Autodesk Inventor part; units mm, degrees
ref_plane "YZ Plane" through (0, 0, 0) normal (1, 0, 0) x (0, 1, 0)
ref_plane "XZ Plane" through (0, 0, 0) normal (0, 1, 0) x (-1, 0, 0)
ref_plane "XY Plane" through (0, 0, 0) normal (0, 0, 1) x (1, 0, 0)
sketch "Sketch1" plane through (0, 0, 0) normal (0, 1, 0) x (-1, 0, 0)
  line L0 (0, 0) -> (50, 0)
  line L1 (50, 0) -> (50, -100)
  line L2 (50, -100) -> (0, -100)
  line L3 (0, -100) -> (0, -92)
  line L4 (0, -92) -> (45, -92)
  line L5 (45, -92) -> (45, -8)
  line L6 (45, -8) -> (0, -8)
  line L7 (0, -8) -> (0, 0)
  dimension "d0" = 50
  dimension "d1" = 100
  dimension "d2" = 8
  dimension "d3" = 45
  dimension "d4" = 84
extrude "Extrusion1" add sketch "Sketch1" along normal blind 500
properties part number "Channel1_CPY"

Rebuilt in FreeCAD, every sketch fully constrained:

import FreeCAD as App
import Part
import Sketcher

doc = App.newDocument("Part")
body = doc.addObject("PartDesign::Body", "Body")

sketch1 = doc.addObject("Sketcher::SketchObject", "Sketch")
body.addObject(sketch1)
sketch1.AttachmentSupport = (doc.XZ_Plane, [""])
sketch1.MapMode = "FlatFace"
sketch1.addGeometry([
    Part.LineSegment(App.Vector(-50, 0, 0), App.Vector(0, 0, 0)),
    Part.LineSegment(App.Vector(0, 0, 0), App.Vector(0, -8, 0)),
    Part.LineSegment(App.Vector(0, -8, 0), App.Vector(-45, -8, 0)),
    Part.LineSegment(App.Vector(-45, -8, 0), App.Vector(-45, -92, 0)),
    Part.LineSegment(App.Vector(-45, -92, 0), App.Vector(0, -92, 0)),
    Part.LineSegment(App.Vector(0, -92, 0), App.Vector(0, -100, 0)),
    Part.LineSegment(App.Vector(0, -100, 0), App.Vector(-50, -100, 0)),
    Part.LineSegment(App.Vector(-50, -100, 0), App.Vector(-50, 0, 0)),
], False)
sketch1.addConstraint([
    Sketcher.Constraint("Coincident", 0, 2, 1, 1),
    Sketcher.Constraint("Coincident", 1, 2, 2, 1),
    Sketcher.Constraint("Coincident", 2, 2, 3, 1),
    Sketcher.Constraint("Coincident", 3, 2, 4, 1),
    Sketcher.Constraint("Coincident", 4, 2, 5, 1),
    Sketcher.Constraint("Coincident", 5, 2, 6, 1),
    Sketcher.Constraint("Coincident", 6, 2, 7, 1),
    Sketcher.Constraint("Coincident", 7, 2, 0, 1),
    Sketcher.Constraint("Horizontal", 0),
    Sketcher.Constraint("Vertical", 1),
    Sketcher.Constraint("Horizontal", 2),
    Sketcher.Constraint("Vertical", 3),
    Sketcher.Constraint("Horizontal", 4),
    Sketcher.Constraint("Vertical", 5),
    Sketcher.Constraint("Horizontal", 6),
    Sketcher.Constraint("Vertical", 7),
    Sketcher.Constraint("Coincident", 0, 2, -1, 1),
    Sketcher.Constraint("PointOnObject", 4, 2, -2),
    Sketcher.Constraint("Equal", 1, 5),
    Sketcher.Constraint("DistanceX", 0, 1, 0, 2, 50.0),
    Sketcher.Constraint("DistanceX", 2, 2, 2, 1, 45.0),
    Sketcher.Constraint("DistanceY", 1, 2, 1, 1, 8.0),
    Sketcher.Constraint("DistanceY", 3, 2, 3, 1, 84.0),
])
pad1 = doc.addObject("PartDesign::Pad", "Pad")
body.addObject(pad1)
pad1.Profile = sketch1
pad1.Length = 500
pad1.Reversed = True

doc.recompute()
